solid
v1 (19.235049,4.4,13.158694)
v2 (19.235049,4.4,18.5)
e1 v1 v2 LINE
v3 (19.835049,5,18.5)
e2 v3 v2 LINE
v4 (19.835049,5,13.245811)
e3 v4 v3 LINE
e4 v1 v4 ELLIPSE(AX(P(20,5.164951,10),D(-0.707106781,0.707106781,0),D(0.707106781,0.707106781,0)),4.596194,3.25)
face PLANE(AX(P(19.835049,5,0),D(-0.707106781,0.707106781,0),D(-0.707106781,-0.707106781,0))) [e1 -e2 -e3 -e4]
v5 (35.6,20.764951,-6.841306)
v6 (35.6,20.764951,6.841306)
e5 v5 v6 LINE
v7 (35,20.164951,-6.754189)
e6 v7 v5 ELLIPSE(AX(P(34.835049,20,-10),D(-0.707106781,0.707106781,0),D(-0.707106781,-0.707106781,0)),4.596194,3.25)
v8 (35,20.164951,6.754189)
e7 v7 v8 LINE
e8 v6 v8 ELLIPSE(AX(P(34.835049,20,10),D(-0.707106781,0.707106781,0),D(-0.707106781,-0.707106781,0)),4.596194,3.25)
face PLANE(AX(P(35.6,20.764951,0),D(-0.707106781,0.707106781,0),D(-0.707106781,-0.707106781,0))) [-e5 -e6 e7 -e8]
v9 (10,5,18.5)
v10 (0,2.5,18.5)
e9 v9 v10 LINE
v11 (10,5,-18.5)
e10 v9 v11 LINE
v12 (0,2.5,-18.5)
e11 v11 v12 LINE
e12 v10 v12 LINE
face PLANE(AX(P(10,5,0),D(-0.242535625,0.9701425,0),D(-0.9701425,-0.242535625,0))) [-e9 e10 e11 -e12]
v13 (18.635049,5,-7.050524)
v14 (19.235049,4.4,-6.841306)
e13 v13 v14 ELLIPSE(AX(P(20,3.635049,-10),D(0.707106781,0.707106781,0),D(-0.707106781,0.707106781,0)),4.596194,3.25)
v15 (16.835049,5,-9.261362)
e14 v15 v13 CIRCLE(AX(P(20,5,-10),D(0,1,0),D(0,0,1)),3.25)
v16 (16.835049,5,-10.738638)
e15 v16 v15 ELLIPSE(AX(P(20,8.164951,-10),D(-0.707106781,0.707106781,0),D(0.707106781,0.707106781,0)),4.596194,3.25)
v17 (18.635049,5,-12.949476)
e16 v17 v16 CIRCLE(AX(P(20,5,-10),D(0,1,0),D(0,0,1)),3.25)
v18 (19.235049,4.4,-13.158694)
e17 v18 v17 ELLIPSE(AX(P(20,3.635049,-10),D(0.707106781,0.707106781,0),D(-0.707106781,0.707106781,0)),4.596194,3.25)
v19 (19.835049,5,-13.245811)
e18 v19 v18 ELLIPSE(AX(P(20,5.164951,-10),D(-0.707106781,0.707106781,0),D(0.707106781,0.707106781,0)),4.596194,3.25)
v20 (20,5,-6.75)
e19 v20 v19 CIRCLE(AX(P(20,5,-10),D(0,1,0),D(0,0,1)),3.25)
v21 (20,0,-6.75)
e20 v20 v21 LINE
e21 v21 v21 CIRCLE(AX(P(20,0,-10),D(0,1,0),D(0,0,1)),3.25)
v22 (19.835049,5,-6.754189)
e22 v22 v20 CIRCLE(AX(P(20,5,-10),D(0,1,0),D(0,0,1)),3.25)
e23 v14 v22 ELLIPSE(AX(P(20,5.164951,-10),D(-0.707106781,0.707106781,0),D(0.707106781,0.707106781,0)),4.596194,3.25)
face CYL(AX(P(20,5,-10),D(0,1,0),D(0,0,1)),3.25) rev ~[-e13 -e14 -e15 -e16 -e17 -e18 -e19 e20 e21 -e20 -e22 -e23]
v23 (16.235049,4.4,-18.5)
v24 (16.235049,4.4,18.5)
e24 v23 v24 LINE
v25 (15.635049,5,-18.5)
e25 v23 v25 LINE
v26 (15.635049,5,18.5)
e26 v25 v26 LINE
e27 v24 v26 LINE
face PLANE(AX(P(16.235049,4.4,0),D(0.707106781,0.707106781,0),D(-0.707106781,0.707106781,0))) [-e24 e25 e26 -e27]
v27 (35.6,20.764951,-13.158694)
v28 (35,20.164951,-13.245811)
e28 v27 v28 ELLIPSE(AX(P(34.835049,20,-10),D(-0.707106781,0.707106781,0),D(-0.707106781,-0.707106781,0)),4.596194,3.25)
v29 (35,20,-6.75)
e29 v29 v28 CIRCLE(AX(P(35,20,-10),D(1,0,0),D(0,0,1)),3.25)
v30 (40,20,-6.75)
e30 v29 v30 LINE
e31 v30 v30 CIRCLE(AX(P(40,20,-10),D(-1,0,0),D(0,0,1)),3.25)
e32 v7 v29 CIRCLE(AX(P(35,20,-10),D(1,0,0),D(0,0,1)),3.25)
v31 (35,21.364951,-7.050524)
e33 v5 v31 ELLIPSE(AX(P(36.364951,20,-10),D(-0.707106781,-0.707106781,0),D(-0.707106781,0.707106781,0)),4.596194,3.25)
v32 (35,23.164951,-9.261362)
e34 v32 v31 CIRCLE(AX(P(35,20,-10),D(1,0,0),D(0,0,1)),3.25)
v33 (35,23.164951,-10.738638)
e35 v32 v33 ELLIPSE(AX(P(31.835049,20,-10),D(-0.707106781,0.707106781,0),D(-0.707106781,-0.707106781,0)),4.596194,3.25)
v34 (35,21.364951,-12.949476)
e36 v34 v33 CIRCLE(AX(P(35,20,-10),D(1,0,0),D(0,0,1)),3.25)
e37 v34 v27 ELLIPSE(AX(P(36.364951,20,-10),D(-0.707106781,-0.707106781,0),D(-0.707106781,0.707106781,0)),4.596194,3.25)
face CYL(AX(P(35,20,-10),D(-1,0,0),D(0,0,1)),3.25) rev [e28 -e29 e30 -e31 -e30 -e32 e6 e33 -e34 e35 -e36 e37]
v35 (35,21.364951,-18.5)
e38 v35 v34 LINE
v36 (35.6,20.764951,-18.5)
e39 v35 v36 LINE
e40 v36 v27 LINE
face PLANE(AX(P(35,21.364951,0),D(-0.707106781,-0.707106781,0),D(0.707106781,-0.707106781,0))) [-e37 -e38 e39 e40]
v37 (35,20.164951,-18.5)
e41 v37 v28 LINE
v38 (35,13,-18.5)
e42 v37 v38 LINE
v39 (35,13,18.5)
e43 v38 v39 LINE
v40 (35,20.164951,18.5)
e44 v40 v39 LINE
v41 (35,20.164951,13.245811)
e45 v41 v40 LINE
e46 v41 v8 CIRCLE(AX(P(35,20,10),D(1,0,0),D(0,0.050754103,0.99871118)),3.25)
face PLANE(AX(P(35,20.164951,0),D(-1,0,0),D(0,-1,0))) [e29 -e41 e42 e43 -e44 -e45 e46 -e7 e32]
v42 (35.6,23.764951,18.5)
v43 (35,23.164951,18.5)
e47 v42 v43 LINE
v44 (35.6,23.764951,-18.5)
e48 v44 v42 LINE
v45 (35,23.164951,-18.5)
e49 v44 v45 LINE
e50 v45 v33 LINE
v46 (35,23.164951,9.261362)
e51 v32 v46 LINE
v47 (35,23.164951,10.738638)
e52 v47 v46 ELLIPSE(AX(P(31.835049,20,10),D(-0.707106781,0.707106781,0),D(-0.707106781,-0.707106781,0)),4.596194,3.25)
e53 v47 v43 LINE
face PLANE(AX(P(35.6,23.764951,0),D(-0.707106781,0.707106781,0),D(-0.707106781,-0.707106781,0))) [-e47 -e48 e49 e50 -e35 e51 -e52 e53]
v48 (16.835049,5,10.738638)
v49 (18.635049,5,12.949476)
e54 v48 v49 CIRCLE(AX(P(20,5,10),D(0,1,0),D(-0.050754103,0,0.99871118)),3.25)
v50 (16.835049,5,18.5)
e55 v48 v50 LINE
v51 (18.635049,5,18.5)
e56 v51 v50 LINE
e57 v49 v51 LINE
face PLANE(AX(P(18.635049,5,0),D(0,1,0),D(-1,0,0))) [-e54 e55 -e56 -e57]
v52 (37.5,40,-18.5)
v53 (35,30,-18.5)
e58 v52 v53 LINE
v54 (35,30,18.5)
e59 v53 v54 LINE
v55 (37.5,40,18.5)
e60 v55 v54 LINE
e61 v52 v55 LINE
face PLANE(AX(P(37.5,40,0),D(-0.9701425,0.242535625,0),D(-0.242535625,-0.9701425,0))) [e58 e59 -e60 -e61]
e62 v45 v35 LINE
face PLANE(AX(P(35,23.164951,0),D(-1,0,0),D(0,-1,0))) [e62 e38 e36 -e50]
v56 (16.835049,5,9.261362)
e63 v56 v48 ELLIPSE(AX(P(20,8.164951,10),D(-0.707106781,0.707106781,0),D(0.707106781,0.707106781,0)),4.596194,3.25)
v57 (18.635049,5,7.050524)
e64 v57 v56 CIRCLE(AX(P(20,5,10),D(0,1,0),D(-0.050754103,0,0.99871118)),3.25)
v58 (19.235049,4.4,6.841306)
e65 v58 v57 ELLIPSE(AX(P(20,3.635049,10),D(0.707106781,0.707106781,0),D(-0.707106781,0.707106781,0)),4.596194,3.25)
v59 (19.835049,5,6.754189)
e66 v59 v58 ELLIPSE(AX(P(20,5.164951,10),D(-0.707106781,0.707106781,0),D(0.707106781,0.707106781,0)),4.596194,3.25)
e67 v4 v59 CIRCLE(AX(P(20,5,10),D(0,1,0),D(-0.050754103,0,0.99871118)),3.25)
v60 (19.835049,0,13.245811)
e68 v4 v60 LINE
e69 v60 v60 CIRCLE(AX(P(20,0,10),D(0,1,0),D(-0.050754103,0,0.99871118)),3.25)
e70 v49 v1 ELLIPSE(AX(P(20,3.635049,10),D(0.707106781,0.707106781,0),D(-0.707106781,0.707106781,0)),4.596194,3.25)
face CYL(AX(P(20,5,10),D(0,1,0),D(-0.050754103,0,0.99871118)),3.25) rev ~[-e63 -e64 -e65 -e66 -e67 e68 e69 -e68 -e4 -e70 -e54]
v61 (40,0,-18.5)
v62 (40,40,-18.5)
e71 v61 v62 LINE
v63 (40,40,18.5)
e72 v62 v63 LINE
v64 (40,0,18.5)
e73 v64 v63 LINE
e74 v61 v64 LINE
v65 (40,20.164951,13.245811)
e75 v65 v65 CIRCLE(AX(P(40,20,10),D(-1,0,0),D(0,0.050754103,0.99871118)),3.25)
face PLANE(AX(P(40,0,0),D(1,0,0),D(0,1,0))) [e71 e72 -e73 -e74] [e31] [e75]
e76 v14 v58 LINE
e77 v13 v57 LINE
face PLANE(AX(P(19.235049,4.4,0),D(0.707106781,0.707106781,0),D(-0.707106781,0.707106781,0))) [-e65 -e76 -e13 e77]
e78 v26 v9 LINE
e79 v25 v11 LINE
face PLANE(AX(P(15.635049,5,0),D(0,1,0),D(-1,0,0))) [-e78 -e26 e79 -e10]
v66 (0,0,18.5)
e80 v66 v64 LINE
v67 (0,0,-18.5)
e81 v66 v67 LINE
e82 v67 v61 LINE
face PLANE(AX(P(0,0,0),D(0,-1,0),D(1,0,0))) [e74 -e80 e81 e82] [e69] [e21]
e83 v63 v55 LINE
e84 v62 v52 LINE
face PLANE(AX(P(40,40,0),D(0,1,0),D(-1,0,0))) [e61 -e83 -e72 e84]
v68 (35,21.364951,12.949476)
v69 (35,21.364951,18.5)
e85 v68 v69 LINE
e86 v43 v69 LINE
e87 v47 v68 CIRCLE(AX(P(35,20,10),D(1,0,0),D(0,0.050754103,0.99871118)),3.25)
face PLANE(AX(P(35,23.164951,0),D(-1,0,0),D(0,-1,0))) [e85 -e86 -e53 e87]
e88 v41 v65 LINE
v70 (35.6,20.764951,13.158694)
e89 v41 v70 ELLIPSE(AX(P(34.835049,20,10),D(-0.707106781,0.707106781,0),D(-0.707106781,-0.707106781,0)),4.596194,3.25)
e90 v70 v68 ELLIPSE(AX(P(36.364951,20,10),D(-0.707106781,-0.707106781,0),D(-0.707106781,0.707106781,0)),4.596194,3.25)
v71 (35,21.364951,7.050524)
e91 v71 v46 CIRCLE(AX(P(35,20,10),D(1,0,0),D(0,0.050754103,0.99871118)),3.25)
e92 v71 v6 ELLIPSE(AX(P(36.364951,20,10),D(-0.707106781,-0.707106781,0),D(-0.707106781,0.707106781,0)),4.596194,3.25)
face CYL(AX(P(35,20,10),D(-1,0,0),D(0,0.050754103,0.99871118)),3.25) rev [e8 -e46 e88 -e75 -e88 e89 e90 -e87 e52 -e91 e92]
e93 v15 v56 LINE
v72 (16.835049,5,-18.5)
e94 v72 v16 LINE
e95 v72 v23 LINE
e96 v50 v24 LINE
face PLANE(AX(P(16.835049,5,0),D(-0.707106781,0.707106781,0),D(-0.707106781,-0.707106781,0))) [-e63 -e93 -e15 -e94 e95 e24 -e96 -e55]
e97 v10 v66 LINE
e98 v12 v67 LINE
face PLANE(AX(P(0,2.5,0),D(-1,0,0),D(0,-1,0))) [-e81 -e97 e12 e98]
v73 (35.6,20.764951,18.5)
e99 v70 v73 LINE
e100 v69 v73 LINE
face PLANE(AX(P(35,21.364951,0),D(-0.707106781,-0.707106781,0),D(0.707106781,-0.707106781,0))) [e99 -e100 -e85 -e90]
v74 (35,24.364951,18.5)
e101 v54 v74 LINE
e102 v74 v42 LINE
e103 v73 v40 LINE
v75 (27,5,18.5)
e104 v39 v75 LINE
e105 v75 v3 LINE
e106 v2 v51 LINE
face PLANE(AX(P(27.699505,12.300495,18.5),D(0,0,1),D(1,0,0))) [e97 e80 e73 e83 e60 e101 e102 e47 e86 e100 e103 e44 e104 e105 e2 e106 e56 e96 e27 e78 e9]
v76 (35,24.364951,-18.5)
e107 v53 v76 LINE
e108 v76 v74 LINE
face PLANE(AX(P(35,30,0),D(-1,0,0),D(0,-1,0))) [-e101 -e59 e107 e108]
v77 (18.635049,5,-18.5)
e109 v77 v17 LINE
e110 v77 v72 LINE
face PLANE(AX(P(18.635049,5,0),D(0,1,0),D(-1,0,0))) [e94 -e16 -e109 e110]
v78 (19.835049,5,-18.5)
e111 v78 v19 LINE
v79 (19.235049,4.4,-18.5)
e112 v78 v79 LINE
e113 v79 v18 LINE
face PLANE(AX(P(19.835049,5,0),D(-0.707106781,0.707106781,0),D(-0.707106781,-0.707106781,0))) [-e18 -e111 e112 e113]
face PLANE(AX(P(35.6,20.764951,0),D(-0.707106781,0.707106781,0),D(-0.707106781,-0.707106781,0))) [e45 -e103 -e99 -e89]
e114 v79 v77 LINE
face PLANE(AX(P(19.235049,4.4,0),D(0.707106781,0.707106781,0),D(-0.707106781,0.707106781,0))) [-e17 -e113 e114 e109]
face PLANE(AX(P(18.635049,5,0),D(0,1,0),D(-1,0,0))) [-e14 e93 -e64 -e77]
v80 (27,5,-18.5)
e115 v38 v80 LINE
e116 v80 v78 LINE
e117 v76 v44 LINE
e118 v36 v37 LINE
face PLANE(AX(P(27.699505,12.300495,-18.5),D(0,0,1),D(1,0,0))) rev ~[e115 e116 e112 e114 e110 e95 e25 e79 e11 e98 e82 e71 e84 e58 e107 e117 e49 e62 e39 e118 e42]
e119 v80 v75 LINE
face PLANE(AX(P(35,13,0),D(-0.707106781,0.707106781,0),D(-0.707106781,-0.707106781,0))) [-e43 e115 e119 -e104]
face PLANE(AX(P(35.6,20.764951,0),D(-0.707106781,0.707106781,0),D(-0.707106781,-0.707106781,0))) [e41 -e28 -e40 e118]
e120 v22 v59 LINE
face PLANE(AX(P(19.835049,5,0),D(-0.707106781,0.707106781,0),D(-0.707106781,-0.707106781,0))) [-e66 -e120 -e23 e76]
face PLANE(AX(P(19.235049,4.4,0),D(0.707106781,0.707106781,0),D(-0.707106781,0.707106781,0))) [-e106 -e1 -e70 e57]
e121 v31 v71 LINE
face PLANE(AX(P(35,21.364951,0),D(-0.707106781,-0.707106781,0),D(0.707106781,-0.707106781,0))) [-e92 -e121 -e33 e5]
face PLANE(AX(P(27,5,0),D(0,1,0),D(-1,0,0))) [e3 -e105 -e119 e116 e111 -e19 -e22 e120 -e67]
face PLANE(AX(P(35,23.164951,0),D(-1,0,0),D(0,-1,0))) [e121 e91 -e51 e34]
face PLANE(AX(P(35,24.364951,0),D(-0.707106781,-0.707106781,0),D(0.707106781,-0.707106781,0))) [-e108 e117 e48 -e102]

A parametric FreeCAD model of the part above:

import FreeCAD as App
import Part
import Sketcher

V = App.Vector

doc = App.newDocument("Part")
body = doc.addObject("PartDesign::Body", "Body")

sketch1 = body.newObject("Sketcher::SketchObject", "Sketch")
sketch1.AttachmentSupport = (doc.getObject("XY_Plane"), [""])
sketch1.MapMode = "FlatFace"
sketch1.addGeometry([
    Part.LineSegment(V(0, 0, 0), V(40, 0, 0)),
    Part.LineSegment(V(40, 0, 0), V(40, 40, 0)),
    Part.LineSegment(V(40, 40, 0), V(37.5, 40, 0)),
    Part.LineSegment(V(37.5, 40, 0), V(35, 30, 0)),
    Part.LineSegment(V(35, 30, 0), V(35, 24.4, 0)),
    Part.LineSegment(V(35, 24.4, 0), V(35.6, 23.8, 0)),
    Part.LineSegment(V(35.6, 23.8, 0), V(35, 23.2, 0)),
    Part.LineSegment(V(35, 23.2, 0), V(35, 21.4, 0)),
    Part.LineSegment(V(35, 21.4, 0), V(35.6, 20.8, 0)),
    Part.LineSegment(V(35.6, 20.8, 0), V(35, 20.2, 0)),
    Part.LineSegment(V(35, 20.2, 0), V(35, 13, 0)),
    Part.LineSegment(V(35, 13, 0), V(27, 5, 0)),
    Part.LineSegment(V(27, 5, 0), V(19.8, 5, 0)),
    Part.LineSegment(V(19.8, 5, 0), V(19.2, 4.4, 0)),
    Part.LineSegment(V(19.2, 4.4, 0), V(18.6, 5, 0)),
    Part.LineSegment(V(18.6, 5, 0), V(16.8, 5, 0)),
    Part.LineSegment(V(16.8, 5, 0), V(16.2, 4.4, 0)),
    Part.LineSegment(V(16.2, 4.4, 0), V(15.6, 5, 0)),
    Part.LineSegment(V(15.6, 5, 0), V(10, 5, 0)),
    Part.LineSegment(V(10, 5, 0), V(0, 2.5, 0)),
    Part.LineSegment(V(0, 2.5, 0), V(0, 0, 0)),
], False)
sketch1.addConstraint([
    Sketcher.Constraint("Coincident", 0, 2, 1, 1),
    Sketcher.Constraint("Coincident", 1, 2, 2, 1),
    Sketcher.Constraint("Coincident", 2, 2, 3, 1),
    Sketcher.Constraint("Coincident", 3, 2, 4, 1),
    Sketcher.Constraint("Coincident", 4, 2, 5, 1),
    Sketcher.Constraint("Coincident", 5, 2, 6, 1),
    Sketcher.Constraint("Coincident", 6, 2, 7, 1),
    Sketcher.Constraint("Coincident", 7, 2, 8, 1),
    Sketcher.Constraint("Coincident", 8, 2, 9, 1),
    Sketcher.Constraint("Coincident", 9, 2, 10, 1),
    Sketcher.Constraint("Coincident", 10, 2, 11, 1),
    Sketcher.Constraint("Coincident", 11, 2, 12, 1),
    Sketcher.Constraint("Coincident", 12, 2, 13, 1),
    Sketcher.Constraint("Coincident", 13, 2, 14, 1),
    Sketcher.Constraint("Coincident", 14, 2, 15, 1),
    Sketcher.Constraint("Coincident", 15, 2, 16, 1),
    Sketcher.Constraint("Coincident", 16, 2, 17, 1),
    Sketcher.Constraint("Coincident", 17, 2, 18, 1),
    Sketcher.Constraint("Coincident", 18, 2, 19, 1),
    Sketcher.Constraint("Coincident", 19, 2, 20, 1),
    Sketcher.Constraint("Coincident", 20, 2, 0, 1),
    Sketcher.Constraint("Horizontal", 0),
    Sketcher.Constraint("Vertical", 1),
    Sketcher.Constraint("Horizontal", 2),
    Sketcher.Constraint("Vertical", 4),
    Sketcher.Constraint("Vertical", 7),
    Sketcher.Constraint("Vertical", 10),
    Sketcher.Constraint("Horizontal", 12),
    Sketcher.Constraint("Horizontal", 15),
    Sketcher.Constraint("Horizontal", 18),
    Sketcher.Constraint("Vertical", 20),
    Sketcher.Constraint("Coincident", 20, 2, -1, 1),
    Sketcher.Constraint("Perpendicular", 5, 6),
    Sketcher.Constraint("Perpendicular", 6, 8),
    Sketcher.Constraint("Perpendicular", 8, 9),
    Sketcher.Constraint("Parallel", 9, 11),
    Sketcher.Constraint("Parallel", 11, 13),
    Sketcher.Constraint("Perpendicular", 13, 14),
    Sketcher.Constraint("Perpendicular", 14, 16),
    Sketcher.Constraint("Perpendicular", 16, 17),
    Sketcher.Constraint("Horizontal", 12, 2, 14, 2),
    Sketcher.Constraint("Horizontal", 13, 2, 16, 2),
    Sketcher.Constraint("Horizontal", 15, 2, 17, 2),
    Sketcher.Constraint("Vertical", 4, 2, 6, 2),
    Sketcher.Constraint("Vertical", 5, 2, 8, 2),
    Sketcher.Constraint("Vertical", 7, 2, 9, 2),
    Sketcher.Constraint("Equal", 0, 1),
    Sketcher.Constraint("Equal", 18, 4),
    Sketcher.Constraint("Equal", 15, 7),
    Sketcher.Constraint("Equal", 12, 10),
    Sketcher.Constraint("Equal", 2, 20),
    Sketcher.Constraint("Equal", 5, 6),
    Sketcher.Constraint("Equal", 9, 13),
    Sketcher.Constraint("Equal", 3, 19),
    Sketcher.Constraint("DistanceX", 0, 1, 0, 2, 40.0),
    Sketcher.Constraint("DistanceX", 2, 2, 2, 1, 2.5),
    Sketcher.Constraint("DistanceX", 15, 2, 15, 1, 1.8),
    Sketcher.Constraint("DistanceX", -1, 1, 3, 2, 35.0),
    Sketcher.Constraint("DistanceY", -1, 1, 3, 2, 30.0),
    Sketcher.Constraint("DistanceY", -1, 1, 10, 2, 13.0),
    Sketcher.Constraint("DistanceY", 7, 2, 4, 2, 3.0),
    Sketcher.Constraint("DistanceX", 12, 2, 12, 1, 7.164951),
])
pad1 = body.newObject("PartDesign::Pad", "Pad")
pad1.Profile = sketch1
pad1.Length = 37
pad1.Midplane = True

sketch2 = body.newObject("Sketcher::SketchObject", "Sketch001")
sketch2.AttachmentSupport = (doc.getObject("XZ_Plane"), [""])
sketch2.MapMode = "FlatFace"
sketch2.AttachmentOffset = App.Placement(V(0, 0, -5), App.Rotation())
sketch2.addGeometry([
    Part.Circle(V(20, -10, 0), V(0, 0, 1), 3.2),
    Part.Circle(V(20, 10, 0), V(0, 0, 1), 3.2),
], False)
sketch2.addConstraint([
    Sketcher.Constraint("Equal", 0, 1),
    Sketcher.Constraint("Symmetric", 0, 3, 1, 3, -1),
    Sketcher.Constraint("Diameter", 0, 6.5),
    Sketcher.Constraint("DistanceX", -1, 1, 0, 3, 20.0),
    Sketcher.Constraint("DistanceY", 0, 3, -1, 1, 10.0),
])
pocket1 = body.newObject("PartDesign::Pocket", "Pocket")
pocket1.Profile = sketch2
pocket1.Type = "ThroughAll"
pocket1.Reversed = True
doc.recompute()

datumplane = body.newObject("PartDesign::Plane", "DatumPlane")
datumplane.Placement = App.Placement(V(20, 20, 0), App.Rotation(V(0.707106781, -0.707106781, 0), V(0, 0, -1), V(0.707106781, 0.707106781, 0), "ZXY"))
mirrored = body.newObject("PartDesign::Mirrored", "Mirrored")
mirrored.Originals = [pocket1]
mirrored.MirrorPlane = (datumplane, [""])
body.Tip = mirrored

doc.recompute()
